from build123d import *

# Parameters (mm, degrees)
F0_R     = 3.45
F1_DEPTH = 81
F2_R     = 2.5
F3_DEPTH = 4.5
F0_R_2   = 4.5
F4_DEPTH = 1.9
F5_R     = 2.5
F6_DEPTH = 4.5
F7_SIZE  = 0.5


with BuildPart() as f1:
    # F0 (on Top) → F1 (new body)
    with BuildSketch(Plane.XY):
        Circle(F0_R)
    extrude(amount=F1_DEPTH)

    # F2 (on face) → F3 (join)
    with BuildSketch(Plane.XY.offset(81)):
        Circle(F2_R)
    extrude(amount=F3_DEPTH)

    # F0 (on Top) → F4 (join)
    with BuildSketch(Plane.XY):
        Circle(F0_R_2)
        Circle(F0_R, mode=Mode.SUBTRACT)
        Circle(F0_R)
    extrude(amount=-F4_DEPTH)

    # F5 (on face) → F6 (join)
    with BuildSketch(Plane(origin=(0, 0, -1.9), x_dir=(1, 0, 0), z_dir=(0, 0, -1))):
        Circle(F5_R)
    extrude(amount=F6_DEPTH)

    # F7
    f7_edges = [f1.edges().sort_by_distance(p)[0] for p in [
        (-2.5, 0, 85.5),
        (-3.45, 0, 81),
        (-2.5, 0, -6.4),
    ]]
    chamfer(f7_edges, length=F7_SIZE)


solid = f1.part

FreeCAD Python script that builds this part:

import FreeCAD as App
import Part
import Sketcher

V = App.Vector
Q = App.Units.Quantity


def edges_at(feature, points):
    """Names of the edges that pass closest to the given points."""
    edges = feature.Shape.Edges
    near = lambda p: min(range(len(edges)), key=lambda i: edges[i].distToShape(Part.Vertex(*p))[0])
    return sorted({f"Edge{near(p) + 1}" for p in points})

doc = App.newDocument("Part")
body = doc.addObject("PartDesign::Body", "Body")

# Sketch on XY plane
sketch1 = body.newObject("Sketcher::SketchObject", "Sketch")
sketch1.AttachmentSupport = (doc.getObject("XY_Plane"), [""])
sketch1.MapMode = "FlatFace"
sketch1.addGeometry(Part.Circle(V(0, 0, 0), V(0, 0, 1), 3.5), False)
sketch1.addConstraint(Sketcher.Constraint("Coincident", 0, 3, -1, 1))
sketch1.addConstraint(Sketcher.Constraint("Diameter", 0, Q("6.9 mm")))
pad1 = body.newObject("PartDesign::Pad", "Pad")
pad1.Profile = sketch1
pad1.Length = 81

# Sketch on XY plane
sketch2 = body.newObject("Sketcher::SketchObject", "Sketch001")
sketch2.AttachmentSupport = (doc.getObject("XY_Plane"), [""])
sketch2.MapMode = "FlatFace"
sketch2.AttachmentOffset = App.Placement(V(0, 0, 81), App.Rotation())
sketch2.addGeometry(Part.Circle(V(0, 0, 0), V(0, 0, 1), 2.5), False)
sketch2.addConstraint(Sketcher.Constraint("Coincident", 0, 3, -1, 1))
sketch2.addConstraint(Sketcher.Constraint("Diameter", 0, Q("5 mm")))
pad2 = body.newObject("PartDesign::Pad", "Pad001")
pad2.Profile = sketch2
pad2.Length = 4.5

# Sketch on XY plane
sketch3 = body.newObject("Sketcher::SketchObject", "Sketch002")
sketch3.AttachmentSupport = (doc.getObject("XY_Plane"), [""])
sketch3.MapMode = "FlatFace"
sketch3.addGeometry(Part.Circle(V(0, 0, 0), V(0, 0, 1), 4.5), False)
sketch3.addConstraint(Sketcher.Constraint("Coincident", 0, 3, -1, 1))
sketch3.addConstraint(Sketcher.Constraint("Diameter", 0, Q("9 mm")))
pad3 = body.newObject("PartDesign::Pad", "Pad002")
pad3.Profile = sketch3
pad3.Length = 1.9
pad3.Reversed = True

# Sketch on XY plane
sketch4 = body.newObject("Sketcher::SketchObject", "Sketch003")
sketch4.AttachmentSupport = (doc.getObject("XY_Plane"), [""])
sketch4.MapMode = "FlatFace"
sketch4.AttachmentOffset = App.Placement(V(0, 0, -1.9), App.Rotation())
sketch4.addGeometry(Part.Circle(V(0, 0, 0), V(0, 0, 1), 2.5), False)
sketch4.addConstraint(Sketcher.Constraint("Coincident", 0, 3, -1, 1))
sketch4.addConstraint(Sketcher.Constraint("Diameter", 0, Q("5 mm")))
pad4 = body.newObject("PartDesign::Pad", "Pad003")
pad4.Profile = sketch4
pad4.Length = 4.5
pad4.Reversed = True
doc.recompute()

chamfer = body.newObject("PartDesign::Chamfer", "Chamfer")
chamfer.Base = (pad4, edges_at(pad4, [(-2.5, 0, 85.5), (-3.45, 0, 81), (-2.5, 0, -6.4)]))
chamfer.Size = 0.5

doc.recompute()
